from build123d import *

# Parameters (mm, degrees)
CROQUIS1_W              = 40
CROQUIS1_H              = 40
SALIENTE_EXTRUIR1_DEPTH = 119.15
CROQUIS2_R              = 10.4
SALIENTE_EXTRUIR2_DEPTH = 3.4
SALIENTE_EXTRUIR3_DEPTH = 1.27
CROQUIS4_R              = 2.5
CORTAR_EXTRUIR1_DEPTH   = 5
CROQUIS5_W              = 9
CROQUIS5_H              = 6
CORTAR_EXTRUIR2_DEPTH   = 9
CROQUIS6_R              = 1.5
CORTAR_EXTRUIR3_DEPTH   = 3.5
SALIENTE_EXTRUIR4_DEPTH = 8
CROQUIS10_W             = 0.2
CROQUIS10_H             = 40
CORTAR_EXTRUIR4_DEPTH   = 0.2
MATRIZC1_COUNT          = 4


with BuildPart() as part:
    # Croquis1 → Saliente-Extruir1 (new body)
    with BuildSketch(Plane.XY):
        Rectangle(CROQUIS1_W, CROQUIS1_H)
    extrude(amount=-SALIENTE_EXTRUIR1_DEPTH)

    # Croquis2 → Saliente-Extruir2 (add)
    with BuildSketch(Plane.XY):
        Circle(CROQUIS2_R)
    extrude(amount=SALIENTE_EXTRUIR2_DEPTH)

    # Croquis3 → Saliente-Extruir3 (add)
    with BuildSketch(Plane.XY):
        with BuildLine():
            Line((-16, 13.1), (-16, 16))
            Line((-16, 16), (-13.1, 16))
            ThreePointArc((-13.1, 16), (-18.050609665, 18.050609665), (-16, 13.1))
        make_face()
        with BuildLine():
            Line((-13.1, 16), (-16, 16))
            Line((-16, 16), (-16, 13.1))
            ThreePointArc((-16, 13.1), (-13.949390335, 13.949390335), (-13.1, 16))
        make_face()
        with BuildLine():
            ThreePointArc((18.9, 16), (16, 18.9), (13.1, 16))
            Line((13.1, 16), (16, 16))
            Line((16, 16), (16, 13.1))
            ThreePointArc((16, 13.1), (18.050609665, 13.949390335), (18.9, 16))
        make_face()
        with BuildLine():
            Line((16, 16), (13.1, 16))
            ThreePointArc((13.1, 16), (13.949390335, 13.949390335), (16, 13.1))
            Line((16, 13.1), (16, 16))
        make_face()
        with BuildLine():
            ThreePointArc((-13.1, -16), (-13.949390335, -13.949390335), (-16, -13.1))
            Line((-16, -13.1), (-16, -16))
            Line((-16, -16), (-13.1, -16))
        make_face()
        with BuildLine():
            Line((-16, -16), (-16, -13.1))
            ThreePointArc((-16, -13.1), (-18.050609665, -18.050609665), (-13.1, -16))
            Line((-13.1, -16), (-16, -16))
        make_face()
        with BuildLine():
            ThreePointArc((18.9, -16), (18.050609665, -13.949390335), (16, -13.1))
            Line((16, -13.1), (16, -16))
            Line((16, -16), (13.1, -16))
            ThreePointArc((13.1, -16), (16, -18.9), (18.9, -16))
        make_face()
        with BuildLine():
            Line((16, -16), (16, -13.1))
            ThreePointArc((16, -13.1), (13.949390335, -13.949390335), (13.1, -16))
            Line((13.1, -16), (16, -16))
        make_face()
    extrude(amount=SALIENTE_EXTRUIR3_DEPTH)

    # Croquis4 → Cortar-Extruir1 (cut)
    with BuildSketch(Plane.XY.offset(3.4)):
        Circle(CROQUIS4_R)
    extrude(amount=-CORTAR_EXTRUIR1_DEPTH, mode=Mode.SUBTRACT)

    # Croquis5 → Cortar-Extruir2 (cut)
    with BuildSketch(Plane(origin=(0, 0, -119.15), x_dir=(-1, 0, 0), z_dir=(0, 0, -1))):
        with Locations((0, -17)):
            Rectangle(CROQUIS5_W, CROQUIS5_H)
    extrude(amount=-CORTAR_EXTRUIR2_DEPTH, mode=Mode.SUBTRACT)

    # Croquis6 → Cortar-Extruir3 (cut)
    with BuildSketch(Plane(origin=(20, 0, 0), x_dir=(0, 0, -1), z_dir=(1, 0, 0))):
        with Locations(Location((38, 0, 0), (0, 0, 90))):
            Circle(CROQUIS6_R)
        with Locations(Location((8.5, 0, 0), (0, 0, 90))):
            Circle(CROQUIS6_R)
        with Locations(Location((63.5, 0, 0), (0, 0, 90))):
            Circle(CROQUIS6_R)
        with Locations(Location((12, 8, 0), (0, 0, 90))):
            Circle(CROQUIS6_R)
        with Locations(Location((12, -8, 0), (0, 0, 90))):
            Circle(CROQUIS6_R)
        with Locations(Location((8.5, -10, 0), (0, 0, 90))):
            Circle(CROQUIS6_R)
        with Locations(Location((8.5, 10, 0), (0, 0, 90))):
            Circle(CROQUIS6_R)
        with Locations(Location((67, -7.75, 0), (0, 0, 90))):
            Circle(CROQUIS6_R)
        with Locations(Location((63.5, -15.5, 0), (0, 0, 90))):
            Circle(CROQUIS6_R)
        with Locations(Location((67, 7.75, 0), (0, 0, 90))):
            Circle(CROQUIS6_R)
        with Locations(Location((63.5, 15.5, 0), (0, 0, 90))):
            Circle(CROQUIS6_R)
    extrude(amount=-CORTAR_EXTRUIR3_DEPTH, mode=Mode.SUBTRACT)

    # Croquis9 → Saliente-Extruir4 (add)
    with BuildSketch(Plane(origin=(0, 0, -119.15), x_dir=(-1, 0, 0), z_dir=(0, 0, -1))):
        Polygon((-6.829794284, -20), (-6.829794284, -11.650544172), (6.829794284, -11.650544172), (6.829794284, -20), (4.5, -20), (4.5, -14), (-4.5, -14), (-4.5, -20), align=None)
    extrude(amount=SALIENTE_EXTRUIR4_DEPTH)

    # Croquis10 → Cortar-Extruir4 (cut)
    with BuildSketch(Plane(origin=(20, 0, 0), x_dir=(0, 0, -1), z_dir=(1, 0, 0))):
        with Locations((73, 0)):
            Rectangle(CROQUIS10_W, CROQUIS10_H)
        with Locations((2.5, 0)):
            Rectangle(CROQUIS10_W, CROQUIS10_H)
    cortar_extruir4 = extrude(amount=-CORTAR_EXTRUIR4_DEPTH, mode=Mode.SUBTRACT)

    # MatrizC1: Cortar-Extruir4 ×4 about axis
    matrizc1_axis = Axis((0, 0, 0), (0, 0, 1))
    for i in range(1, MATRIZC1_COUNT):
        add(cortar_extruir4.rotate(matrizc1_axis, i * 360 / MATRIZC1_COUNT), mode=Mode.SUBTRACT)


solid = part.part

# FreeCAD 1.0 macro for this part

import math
import FreeCAD as App
import Part
import Sketcher

V = App.Vector
Q = App.Units.Quantity

doc = App.newDocument("Part")
body = doc.addObject("PartDesign::Body", "Body")

# Sketch on XY plane
sketch1 = body.newObject("Sketcher::SketchObject", "Sketch")
sketch1.AttachmentSupport = (doc.getObject("XY_Plane"), [""])
sketch1.MapMode = "FlatFace"
sketch1.addGeometry([
    Part.LineSegment(V(-20, 20, 0), V(-20, -20, 0)),
    Part.LineSegment(V(-20, -20, 0), V(20, -20, 0)),
    Part.LineSegment(V(20, -20, 0), V(20, 20, 0)),
    Part.LineSegment(V(20, 20, 0), V(-20, 20, 0)),
], False)
sketch1.addConstraint([
    Sketcher.Constraint("Coincident", 0, 2, 1, 1),
    Sketcher.Constraint("Coincident", 1, 2, 2, 1),
    Sketcher.Constraint("Coincident", 2, 2, 3, 1),
    Sketcher.Constraint("Coincident", 3, 2, 0, 1),
    Sketcher.Constraint("Vertical", 0),
    Sketcher.Constraint("Horizontal", 1),
    Sketcher.Constraint("Vertical", 2),
    Sketcher.Constraint("Horizontal", 3),
    Sketcher.Constraint("Symmetric", 0, 2, 2, 2, -1, 1),
    Sketcher.Constraint("Equal", 3, 0),
    Sketcher.Constraint("DistanceX", 1, 1, 1, 2, Q("40 mm")),
])
pad1 = body.newObject("PartDesign::Pad", "Pad")
pad1.Profile = sketch1
pad1.Length = 119.15
pad1.Reversed = True

# Sketch on XY plane
sketch2 = body.newObject("Sketcher::SketchObject", "Sketch001")
sketch2.AttachmentSupport = (doc.getObject("XY_Plane"), [""])
sketch2.MapMode = "FlatFace"
sketch2.addGeometry(Part.Circle(V(0, 0, 0), V(0, 0, 1), 10), False)
sketch2.addConstraint([
    Sketcher.Constraint("Coincident", 0, 3, -1, 1),
    Sketcher.Constraint("Diameter", 0, Q("20.8 mm")),
])
pad2 = body.newObject("PartDesign::Pad", "Pad001")
pad2.Profile = sketch2
pad2.Length = 3.4

# Sketch on XY plane
sketch3 = body.newObject("Sketcher::SketchObject", "Sketch002")
sketch3.AttachmentSupport = (doc.getObject("XY_Plane"), [""])
sketch3.MapMode = "FlatFace"
sketch3.addGeometry([
    Part.ArcOfCircle(Part.Circle(V(-16, 16, 0), V(0, 0, 1), 2.9), math.radians(0), math.radians(270)),  # 0
    Part.ArcOfCircle(Part.Circle(V(-16, 16, 0), V(0, 0, 1), 2.9), math.radians(-90), math.radians(0)),  # 1
    Part.ArcOfCircle(Part.Circle(V(16, 16, 0), V(0, 0, 1), 2.9), math.radians(0), math.radians(180)),  # 2
    Part.ArcOfCircle(Part.Circle(V(16, 16, 0), V(0, 0, 1), 2.9), math.radians(-180), math.radians(-90)),  # 3
    Part.ArcOfCircle(Part.Circle(V(16, 16, 0), V(0, 0, 1), 2.9), math.radians(-90), math.radians(0)),  # 4
    Part.ArcOfCircle(Part.Circle(V(-16, -16, 0), V(0, 0, 1), 2.9), math.radians(0), math.radians(90)),  # 5
    Part.ArcOfCircle(Part.Circle(V(-16, -16, 0), V(0, 0, 1), 2.9), math.radians(90), math.radians(360)),  # 6
    Part.ArcOfCircle(Part.Circle(V(16, -16, 0), V(0, 0, 1), 2.9), math.radians(0), math.radians(90)),  # 7
    Part.ArcOfCircle(Part.Circle(V(16, -16, 0), V(0, 0, 1), 2.9), math.radians(90), math.radians(180)),  # 8
    Part.ArcOfCircle(Part.Circle(V(16, -16, 0), V(0, 0, 1), 2.9), math.radians(180), math.radians(360)),  # 9
], False)
sketch3.addConstraint([
    Sketcher.Constraint("Tangent", 0, 1, 1, 2),
    Sketcher.Constraint("Coincident", 1, 1, 0, 2),
    Sketcher.Constraint("Tangent", 2, 2, 3, 1),
    Sketcher.Constraint("Tangent", 3, 2, 4, 1),
    Sketcher.Constraint("Tangent", 4, 2, 2, 1),
    Sketcher.Constraint("Tangent", 5, 1, 6, 2),
    Sketcher.Constraint("Coincident", 6, 1, 5, 2),
    Sketcher.Constraint("Tangent", 7, 2, 8, 1),
    Sketcher.Constraint("Tangent", 8, 2, 9, 1),
    Sketcher.Constraint("Tangent", 9, 2, 7, 1),
    Sketcher.Constraint("Equal", 1, 2),
    Sketcher.Constraint("Equal", 4, 5),
    Sketcher.Constraint("Equal", 6, 7),
    Sketcher.Constraint("Symmetric", 2, 3, 5, 3, -1, 1),
    Sketcher.Constraint("Symmetric", 0, 3, 7, 3, -1, 1),
    Sketcher.Constraint("Symmetric", 0, 3, 2, 3, -2),
    Sketcher.Constraint("Horizontal", 4, 3, 0, 1),
    Sketcher.Constraint("Horizontal", 0, 1, 2, 2),
    Sketcher.Constraint("Horizontal", 2, 2, 4, 2),
    Sketcher.Constraint("Horizontal", 9, 3, 5, 1),
    Sketcher.Constraint("Horizontal", 5, 1, 8, 2),
    Sketcher.Constraint("Horizontal", 8, 2, 9, 2),
    Sketcher.Constraint("Vertical", 6, 3, 1, 1),
    Sketcher.Constraint("Vertical", 9, 3, 3, 2),
    Sketcher.Constraint("Vertical", 1, 1, 6, 1),
    Sketcher.Constraint("Vertical", 3, 2, 7, 2),
    Sketcher.Constraint("Radius", 0, Q("2.9 mm")),
    Sketcher.Constraint("DistanceX", 0, 3, -1, 1, Q("16 mm")),
    Sketcher.Constraint("DistanceY", -1, 1, 0, 3, Q("16 mm")),
])
pad3 = body.newObject("PartDesign::Pad", "Pad002")
pad3.Profile = sketch3
pad3.Length = 1.27

# Sketch on XY plane
sketch4 = body.newObject("Sketcher::SketchObject", "Sketch003")
sketch4.AttachmentSupport = (doc.getObject("XY_Plane"), [""])
sketch4.MapMode = "FlatFace"
sketch4.AttachmentOffset = App.Placement(V(0, 0, 3.4), App.Rotation())
sketch4.addGeometry(Part.Circle(V(0, 0, 0), V(0, 0, 1), 2.5), False)
sketch4.addConstraint([
    Sketcher.Constraint("Coincident", 0, 3, -1, 1),
    Sketcher.Constraint("Diameter", 0, Q("5 mm")),
])
pocket1 = body.newObject("PartDesign::Pocket", "Pocket")
pocket1.Profile = sketch4
pocket1.Length = 5

# Sketch on XY plane
sketch5 = body.newObject("Sketcher::SketchObject", "Sketch004")
sketch5.AttachmentSupport = (doc.getObject("XY_Plane"), [""])
sketch5.MapMode = "FlatFace"
sketch5.AttachmentOffset = App.Placement(V(0, 0, -119.15), App.Rotation())
sketch5.addGeometry([
    Part.LineSegment(V(4, -14, 0), V(4, -20, 0)),
    Part.LineSegment(V(4, -20, 0), V(-4, -20, 0)),
    Part.LineSegment(V(-4, -20, 0), V(-4, -14, 0)),
    Part.LineSegment(V(-4, -14, 0), V(4, -14, 0)),
], False)
sketch5.addConstraint([
    Sketcher.Constraint("Coincident", 0, 2, 1, 1),
    Sketcher.Constraint("Coincident", 1, 2, 2, 1),
    Sketcher.Constraint("Coincident", 2, 2, 3, 1),
    Sketcher.Constraint("Coincident", 3, 2, 0, 1),
    Sketcher.Constraint("Vertical", 0),
    Sketcher.Constraint("Horizontal", 1),
    Sketcher.Constraint("Vertical", 2),
    Sketcher.Constraint("Horizontal", 3),
    Sketcher.Constraint("DistanceX", 1, 2, 1, 1, Q("9 mm")),
    Sketcher.Constraint("DistanceY", 0, 2, 0, 1, Q("6 mm")),
    Sketcher.Constraint("DistanceY", 0, 2, -1, 1, Q("20 mm")),
    Sketcher.Constraint("DistanceX", -1, 1, 0, 2, Q("4.5 mm")),
])
pocket2 = body.newObject("PartDesign::Pocket", "Pocket001")
pocket2.Profile = sketch5
pocket2.Length = 9
pocket2.Reversed = True

# Sketch on YZ plane
sketch6 = body.newObject("Sketcher::SketchObject", "Sketch005")
sketch6.AttachmentSupport = (doc.getObject("YZ_Plane"), [""])
sketch6.MapMode = "FlatFace"
sketch6.AttachmentOffset = App.Placement(V(0, 0, 20), App.Rotation())
sketch6.addGeometry([
    Part.Circle(V(0, -38, 0), V(0, 0, 1), 1.5),  # 0
    Part.Circle(V(0, -8.5, 0), V(0, 0, 1), 1.5),  # 1
    Part.Circle(V(0, -63.5, 0), V(0, 0, 1), 1.5),  # 2
    Part.Circle(V(8, -12, 0), V(0, 0, 1), 1.5),  # 3
    Part.Circle(V(-8, -12, 0), V(0, 0, 1), 1.5),  # 4
    Part.Circle(V(-10, -8.5, 0), V(0, 0, 1), 1.5),  # 5
    Part.Circle(V(10, -8.5, 0), V(0, 0, 1), 1.5),  # 6
    Part.Circle(V(-7.8, -67, 0), V(0, 0, 1), 1.5),  # 7
    Part.Circle(V(-15.5, -63.5, 0), V(0, 0, 1), 1.5),  # 8
    Part.Circle(V(7.8, -67, 0), V(0, 0, 1), 1.5),  # 9
    Part.Circle(V(15.5, -63.5, 0), V(0, 0, 1), 1.5),  # 10
], False)
sketch6.addConstraint([
    Sketcher.Constraint("Equal", 0, 1),
    Sketcher.Constraint("Equal", 1, 2),
    Sketcher.Constraint("Equal", 2, 3),
    Sketcher.Constraint("Equal", 3, 4),
    Sketcher.Constraint("Equal", 4, 5),
    Sketcher.Constraint("Equal", 5, 6),
    Sketcher.Constraint("Equal", 6, 7),
    Sketcher.Constraint("Equal", 7, 8),
    Sketcher.Constraint("Equal", 8, 9),
    Sketcher.Constraint("Equal", 9, 10),
    Sketcher.Constraint("Symmetric", 3, 3, 4, 3, -2),
    Sketcher.Constraint("Symmetric", 5, 3, 6, 3, -2),
    Sketcher.Constraint("Symmetric", 7, 3, 9, 3, -2),
    Sketcher.Constraint("Symmetric", 8, 3, 10, 3, -2),
    Sketcher.Constraint("PointOnObject", 0, 3, -2),
    Sketcher.Constraint("PointOnObject", 1, 3, -2),
    Sketcher.Constraint("PointOnObject", 2, 3, -2),
    Sketcher.Constraint("Horizontal", 1, 3, 5, 3),
    Sketcher.Constraint("Horizontal", 2, 3, 8, 3),
    Sketcher.Constraint("Diameter", 0, Q("3 mm")),
    Sketcher.Constraint("DistanceY", 0, 3, -1, 1, Q("38 mm")),
    Sketcher.Constraint("DistanceX", -1, 1, 3, 3, Q("8 mm")),
    Sketcher.Constraint("DistanceY", 3, 3, -1, 1, Q("12 mm")),
    Sketcher.Constraint("DistanceX", 5, 3, -1, 1, Q("10 mm")),
    Sketcher.Constraint("DistanceY", 7, 3, -1, 1, Q("67 mm")),
    Sketcher.Constraint("DistanceY", 2, 3, 1, 3, Q("55 mm")),
    Sketcher.Constraint("DistanceX", 8, 3, 10, 3, Q("31 mm")),
    Sketcher.Constraint("DistanceY", 1, 3, -1, 1, Q("8.5 mm")),
    Sketcher.Constraint("DistanceX", 7, 3, 9, 3, Q("15.5 mm")),
])
pocket3 = body.newObject("PartDesign::Pocket", "Pocket002")
pocket3.Profile = sketch6
pocket3.Length = 3.5

# Sketch on XY plane
sketch7 = body.newObject("Sketcher::SketchObject", "Sketch006")
sketch7.AttachmentSupport = (doc.getObject("XY_Plane"), [""])
sketch7.MapMode = "FlatFace"
sketch7.AttachmentOffset = App.Placement(V(0, 0, -119.15), App.Rotation())
sketch7.addGeometry([
    Part.LineSegment(V(6.8, -11.7, 0), V(6.8, -20, 0)),  # 0
    Part.LineSegment(V(6.8, -20, 0), V(4.5, -20, 0)),  # 1
    Part.LineSegment(V(4.5, -20, 0), V(4.5, -14, 0)),  # 2
    Part.LineSegment(V(4.5, -14, 0), V(-4.5, -14, 0)),  # 3
    Part.LineSegment(V(-4.5, -14, 0), V(-4.5, -20, 0)),  # 4
    Part.LineSegment(V(-4.5, -20, 0), V(-6.8, -20, 0)),  # 5
    Part.LineSegment(V(-6.8, -20, 0), V(-6.8, -11.7, 0)),  # 6
    Part.LineSegment(V(-6.8, -11.7, 0), V(6.8, -11.7, 0)),  # 7
], False)
sketch7.addConstraint([
    Sketcher.Constraint("Coincident", 0, 2, 1, 1),
    Sketcher.Constraint("Coincident", 1, 2, 2, 1),
    Sketcher.Constraint("Coincident", 2, 2, 3, 1),
    Sketcher.Constraint("Coincident", 3, 2, 4, 1),
    Sketcher.Constraint("Coincident", 4, 2, 5, 1),
    Sketcher.Constraint("Coincident", 5, 2, 6, 1),
    Sketcher.Constraint("Coincident", 6, 2, 7, 1),
    Sketcher.Constraint("Coincident", 7, 2, 0, 1),
    Sketcher.Constraint("Vertical", 0),
    Sketcher.Constraint("Horizontal", 1),
    Sketcher.Constraint("Vertical", 2),
    Sketcher.Constraint("Horizontal", 3),
    Sketcher.Constraint("Vertical", 4),
    Sketcher.Constraint("Horizontal", 5),
    Sketcher.Constraint("Vertical", 6),
    Sketcher.Constraint("Horizontal", 7),
    Sketcher.Constraint("Symmetric", 1, 2, 4, 2, -2),
    Sketcher.Constraint("Equal", 1, 5),
    Sketcher.Constraint("DistanceX", 3, 2, 3, 1, Q("9 mm")),
    Sketcher.Constraint("DistanceY", 2, 1, 2, 2, Q("6 mm")),
    Sketcher.Constraint("DistanceY", 0, 2, -1, 1, Q("20 mm")),
    Sketcher.Constraint("DistanceX", 7, 1, 7, 2, Q("13.659589 mm")),
    Sketcher.Constraint("DistanceY", 0, 2, 0, 1, Q("8.349456 mm")),
])
pad4 = body.newObject("PartDesign::Pad", "Pad003")
pad4.Profile = sketch7
pad4.Length = 8
pad4.Reversed = True

# Sketch on YZ plane
sketch8 = body.newObject("Sketcher::SketchObject", "Sketch007")
sketch8.AttachmentSupport = (doc.getObject("YZ_Plane"), [""])
sketch8.MapMode = "FlatFace"
sketch8.AttachmentOffset = App.Placement(V(0, 0, 20), App.Rotation())
sketch8.addGeometry([
    Part.LineSegment(V(20, -72.9, 0), V(-20, -72.9, 0)),  # 0
    Part.LineSegment(V(-20, -72.9, 0), V(-20, -73.1, 0)),  # 1
    Part.LineSegment(V(-20, -73.1, 0), V(20, -73.1, 0)),  # 2
    Part.LineSegment(V(20, -73.1, 0), V(20, -72.9, 0)),  # 3
    Part.LineSegment(V(20, -2.4, 0), V(-20, -2.4, 0)),  # 4
    Part.LineSegment(V(-20, -2.4, 0), V(-20, -2.6, 0)),  # 5
    Part.LineSegment(V(-20, -2.6, 0), V(20, -2.6, 0)),  # 6
    Part.LineSegment(V(20, -2.6, 0), V(20, -2.4, 0)),  # 7
], False)
sketch8.addConstraint([
    Sketcher.Constraint("Coincident", 0, 2, 1, 1),
    Sketcher.Constraint("Coincident", 1, 2, 2, 1),
    Sketcher.Constraint("Coincident", 2, 2, 3, 1),
    Sketcher.Constraint("Coincident", 3, 2, 0, 1),
    Sketcher.Constraint("Coincident", 4, 2, 5, 1),
    Sketcher.Constraint("Coincident", 5, 2, 6, 1),
    Sketcher.Constraint("Coincident", 6, 2, 7, 1),
    Sketcher.Constraint("Coincident", 7, 2, 4, 1),
    Sketcher.Constraint("Horizontal", 0),
    Sketcher.Constraint("Vertical", 1),
    Sketcher.Constraint("Horizontal", 2),
    Sketcher.Constraint("Vertical", 3),
    Sketcher.Constraint("Horizontal", 4),
    Sketcher.Constraint("Vertical", 5),
    Sketcher.Constraint("Horizontal", 6),
    Sketcher.Constraint("Vertical", 7),
    Sketcher.Constraint("Vertical", 1, 2, 4, 2),
    Sketcher.Constraint("Vertical", 3, 2, 6, 2),
    Sketcher.Constraint("Equal", 3, 5),
    Sketcher.Constraint("DistanceX", 0, 2, 0, 1, Q("40 mm")),
    Sketcher.Constraint("DistanceY", 1, 2, 1, 1, Q("0.2 mm")),
    Sketcher.Constraint("DistanceX", 0, 2, -1, 1, Q("20 mm")),
    Sketcher.Constraint("DistanceY", 0, 2, -1, 1, Q("72.9 mm")),
    Sketcher.Constraint("DistanceY", 4, 2, -1, 1, Q("2.4 mm")),
])
pocket4 = body.newObject("PartDesign::Pocket", "Pocket003")
pocket4.Profile = sketch8
pocket4.Length = 0.2
doc.recompute()

polarpattern = body.newObject("PartDesign::PolarPattern", "PolarPattern")
polarpattern.Originals = [pocket4]
polarpattern.Axis = (doc.getObject("Z_Axis"), [""])
polarpattern.Angle = 360
polarpattern.Occurrences = 4
body.Tip = polarpattern

doc.recompute()
